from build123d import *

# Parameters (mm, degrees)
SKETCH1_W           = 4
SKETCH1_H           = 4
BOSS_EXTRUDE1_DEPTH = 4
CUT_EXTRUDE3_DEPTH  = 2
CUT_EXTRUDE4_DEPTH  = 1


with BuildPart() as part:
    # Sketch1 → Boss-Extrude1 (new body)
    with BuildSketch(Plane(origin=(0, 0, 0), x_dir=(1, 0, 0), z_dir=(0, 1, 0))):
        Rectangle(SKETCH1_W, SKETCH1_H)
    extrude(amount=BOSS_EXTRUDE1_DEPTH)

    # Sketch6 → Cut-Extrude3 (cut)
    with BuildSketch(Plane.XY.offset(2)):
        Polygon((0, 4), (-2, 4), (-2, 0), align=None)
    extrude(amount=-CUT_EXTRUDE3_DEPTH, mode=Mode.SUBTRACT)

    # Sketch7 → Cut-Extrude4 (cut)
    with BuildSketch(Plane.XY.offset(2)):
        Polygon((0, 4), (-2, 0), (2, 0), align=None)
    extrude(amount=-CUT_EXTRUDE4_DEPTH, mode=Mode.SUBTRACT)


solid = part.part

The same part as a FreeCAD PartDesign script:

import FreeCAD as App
import Part
import Sketcher
from FreeCAD import Vector
Q = App.Units.Quantity

doc = App.newDocument("Part")
params = doc.addObject("Spreadsheet::Sheet", "Params")
for row, (alias, value) in enumerate([
    ("sketch1_width", "4 mm"),
    ("pad1_length", "4 mm"),
    ("sketch2_width", "2 mm"),
    ("sketch2_height", "4 mm"),
    ("pocket1_length", "2 mm"),
    ("sketch3_width", "4 mm"),
    ("pocket2_length", "1 mm"),
], start=1):
    params.set(f"A{row}", alias)
    params.set(f"B{row}", "=" + value)
    params.setAlias(f"B{row}", alias)

body = doc.addObject("PartDesign::Body", "Body")

sketch1 = body.newObject("Sketcher::SketchObject", "Sketch")
sketch1.AttachmentSupport = (doc.getObject("XZ_Plane"), [""])
sketch1.MapMode = "FlatFace"
sketch1.addGeometry([
    Part.LineSegment(Vector(-2, -2, 0), Vector(-2, 2, 0)),
    Part.LineSegment(Vector(-2, 2, 0), Vector(2, 2, 0)),
    Part.LineSegment(Vector(2, 2, 0), Vector(2, -2, 0)),
    Part.LineSegment(Vector(2, -2, 0), Vector(-2, -2, 0)),
], False)
sketch1.addConstraint([
    Sketcher.Constraint("Coincident", 0, 2, 1, 1),
    Sketcher.Constraint("Coincident", 1, 2, 2, 1),
    Sketcher.Constraint("Coincident", 2, 2, 3, 1),
    Sketcher.Constraint("Coincident", 3, 2, 0, 1),
    Sketcher.Constraint("Vertical", 0),
    Sketcher.Constraint("Horizontal", 1),
    Sketcher.Constraint("Vertical", 2),
    Sketcher.Constraint("Horizontal", 3),
    Sketcher.Constraint("Symmetric", 0, 2, 2, 2, -1, 1),
    Sketcher.Constraint("Equal", 3, 0),
    Sketcher.Constraint("DistanceX", 1, 1, 1, 2, Q("4 mm")),
])
sketch1.setExpression("Constraints[10]", "Params.sketch1_width")
pad1 = body.newObject("PartDesign::Pad", "Pad")
pad1.Profile = sketch1
pad1.setExpression("Length", "Params.pad1_length")
pad1.Reversed = True

sketch2 = body.newObject("Sketcher::SketchObject", "Sketch001")
sketch2.AttachmentSupport = (doc.getObject("XY_Plane"), [""])
sketch2.MapMode = "FlatFace"
sketch2.AttachmentOffset = App.Placement(Vector(0, 0, 2), App.Rotation())
sketch2.addGeometry([
    Part.LineSegment(Vector(0, 4, 0), Vector(-2, 4, 0)),
    Part.LineSegment(Vector(-2, 4, 0), Vector(-2, 0, 0)),
    Part.LineSegment(Vector(-2, 0, 0), Vector(0, 4, 0)),
], False)
sketch2.addConstraint([
    Sketcher.Constraint("Coincident", 0, 2, 1, 1),
    Sketcher.Constraint("Coincident", 1, 2, 2, 1),
    Sketcher.Constraint("Coincident", 2, 2, 0, 1),
    Sketcher.Constraint("Horizontal", 0),
    Sketcher.Constraint("Vertical", 1),
    Sketcher.Constraint("PointOnObject", 1, 2, -1),
    Sketcher.Constraint("PointOnObject", 2, 2, -2),
    Sketcher.Constraint("DistanceX", 0, 2, 0, 1, Q("2 mm")),
    Sketcher.Constraint("DistanceY", 1, 2, 1, 1, Q("4 mm")),
])
sketch2.setExpression("Constraints[7]", "Params.sketch2_width")
sketch2.setExpression("Constraints[8]", "Params.sketch2_height")
pocket1 = body.newObject("PartDesign::Pocket", "Pocket")
pocket1.Profile = sketch2
pocket1.setExpression("Length", "Params.pocket1_length")

sketch3 = body.newObject("Sketcher::SketchObject", "Sketch002")
sketch3.AttachmentSupport = (doc.getObject("XY_Plane"), [""])
sketch3.MapMode = "FlatFace"
sketch3.AttachmentOffset = App.Placement(Vector(0, 0, 2), App.Rotation())
sketch3.addGeometry([
    Part.LineSegment(Vector(0, 4, 0), Vector(-2, 0, 0)),
    Part.LineSegment(Vector(-2, 0, 0), Vector(2, 0, 0)),
    Part.LineSegment(Vector(2, 0, 0), Vector(0, 4, 0)),
], False)
sketch3.addConstraint([
    Sketcher.Constraint("Coincident", 0, 2, 1, 1),
    Sketcher.Constraint("Coincident", 1, 2, 2, 1),
    Sketcher.Constraint("Coincident", 2, 2, 0, 1),
    Sketcher.Constraint("Horizontal", 1),
    Sketcher.Constraint("Symmetric", 0, 2, 1, 2, -1, 1),
    Sketcher.Constraint("PointOnObject", 2, 2, -2),
    Sketcher.Constraint("DistanceX", 1, 1, 1, 2, Q("4 mm")),
    Sketcher.Constraint("DistanceY", -1, 1, 2, 2, Q("4 mm")),
])
sketch3.setExpression("Constraints[6]", "Params.sketch3_width")
pocket2 = body.newObject("PartDesign::Pocket", "Pocket001")
pocket2.Profile = sketch3
pocket2.setExpression("Length", "Params.pocket2_length")

doc.recompute()
